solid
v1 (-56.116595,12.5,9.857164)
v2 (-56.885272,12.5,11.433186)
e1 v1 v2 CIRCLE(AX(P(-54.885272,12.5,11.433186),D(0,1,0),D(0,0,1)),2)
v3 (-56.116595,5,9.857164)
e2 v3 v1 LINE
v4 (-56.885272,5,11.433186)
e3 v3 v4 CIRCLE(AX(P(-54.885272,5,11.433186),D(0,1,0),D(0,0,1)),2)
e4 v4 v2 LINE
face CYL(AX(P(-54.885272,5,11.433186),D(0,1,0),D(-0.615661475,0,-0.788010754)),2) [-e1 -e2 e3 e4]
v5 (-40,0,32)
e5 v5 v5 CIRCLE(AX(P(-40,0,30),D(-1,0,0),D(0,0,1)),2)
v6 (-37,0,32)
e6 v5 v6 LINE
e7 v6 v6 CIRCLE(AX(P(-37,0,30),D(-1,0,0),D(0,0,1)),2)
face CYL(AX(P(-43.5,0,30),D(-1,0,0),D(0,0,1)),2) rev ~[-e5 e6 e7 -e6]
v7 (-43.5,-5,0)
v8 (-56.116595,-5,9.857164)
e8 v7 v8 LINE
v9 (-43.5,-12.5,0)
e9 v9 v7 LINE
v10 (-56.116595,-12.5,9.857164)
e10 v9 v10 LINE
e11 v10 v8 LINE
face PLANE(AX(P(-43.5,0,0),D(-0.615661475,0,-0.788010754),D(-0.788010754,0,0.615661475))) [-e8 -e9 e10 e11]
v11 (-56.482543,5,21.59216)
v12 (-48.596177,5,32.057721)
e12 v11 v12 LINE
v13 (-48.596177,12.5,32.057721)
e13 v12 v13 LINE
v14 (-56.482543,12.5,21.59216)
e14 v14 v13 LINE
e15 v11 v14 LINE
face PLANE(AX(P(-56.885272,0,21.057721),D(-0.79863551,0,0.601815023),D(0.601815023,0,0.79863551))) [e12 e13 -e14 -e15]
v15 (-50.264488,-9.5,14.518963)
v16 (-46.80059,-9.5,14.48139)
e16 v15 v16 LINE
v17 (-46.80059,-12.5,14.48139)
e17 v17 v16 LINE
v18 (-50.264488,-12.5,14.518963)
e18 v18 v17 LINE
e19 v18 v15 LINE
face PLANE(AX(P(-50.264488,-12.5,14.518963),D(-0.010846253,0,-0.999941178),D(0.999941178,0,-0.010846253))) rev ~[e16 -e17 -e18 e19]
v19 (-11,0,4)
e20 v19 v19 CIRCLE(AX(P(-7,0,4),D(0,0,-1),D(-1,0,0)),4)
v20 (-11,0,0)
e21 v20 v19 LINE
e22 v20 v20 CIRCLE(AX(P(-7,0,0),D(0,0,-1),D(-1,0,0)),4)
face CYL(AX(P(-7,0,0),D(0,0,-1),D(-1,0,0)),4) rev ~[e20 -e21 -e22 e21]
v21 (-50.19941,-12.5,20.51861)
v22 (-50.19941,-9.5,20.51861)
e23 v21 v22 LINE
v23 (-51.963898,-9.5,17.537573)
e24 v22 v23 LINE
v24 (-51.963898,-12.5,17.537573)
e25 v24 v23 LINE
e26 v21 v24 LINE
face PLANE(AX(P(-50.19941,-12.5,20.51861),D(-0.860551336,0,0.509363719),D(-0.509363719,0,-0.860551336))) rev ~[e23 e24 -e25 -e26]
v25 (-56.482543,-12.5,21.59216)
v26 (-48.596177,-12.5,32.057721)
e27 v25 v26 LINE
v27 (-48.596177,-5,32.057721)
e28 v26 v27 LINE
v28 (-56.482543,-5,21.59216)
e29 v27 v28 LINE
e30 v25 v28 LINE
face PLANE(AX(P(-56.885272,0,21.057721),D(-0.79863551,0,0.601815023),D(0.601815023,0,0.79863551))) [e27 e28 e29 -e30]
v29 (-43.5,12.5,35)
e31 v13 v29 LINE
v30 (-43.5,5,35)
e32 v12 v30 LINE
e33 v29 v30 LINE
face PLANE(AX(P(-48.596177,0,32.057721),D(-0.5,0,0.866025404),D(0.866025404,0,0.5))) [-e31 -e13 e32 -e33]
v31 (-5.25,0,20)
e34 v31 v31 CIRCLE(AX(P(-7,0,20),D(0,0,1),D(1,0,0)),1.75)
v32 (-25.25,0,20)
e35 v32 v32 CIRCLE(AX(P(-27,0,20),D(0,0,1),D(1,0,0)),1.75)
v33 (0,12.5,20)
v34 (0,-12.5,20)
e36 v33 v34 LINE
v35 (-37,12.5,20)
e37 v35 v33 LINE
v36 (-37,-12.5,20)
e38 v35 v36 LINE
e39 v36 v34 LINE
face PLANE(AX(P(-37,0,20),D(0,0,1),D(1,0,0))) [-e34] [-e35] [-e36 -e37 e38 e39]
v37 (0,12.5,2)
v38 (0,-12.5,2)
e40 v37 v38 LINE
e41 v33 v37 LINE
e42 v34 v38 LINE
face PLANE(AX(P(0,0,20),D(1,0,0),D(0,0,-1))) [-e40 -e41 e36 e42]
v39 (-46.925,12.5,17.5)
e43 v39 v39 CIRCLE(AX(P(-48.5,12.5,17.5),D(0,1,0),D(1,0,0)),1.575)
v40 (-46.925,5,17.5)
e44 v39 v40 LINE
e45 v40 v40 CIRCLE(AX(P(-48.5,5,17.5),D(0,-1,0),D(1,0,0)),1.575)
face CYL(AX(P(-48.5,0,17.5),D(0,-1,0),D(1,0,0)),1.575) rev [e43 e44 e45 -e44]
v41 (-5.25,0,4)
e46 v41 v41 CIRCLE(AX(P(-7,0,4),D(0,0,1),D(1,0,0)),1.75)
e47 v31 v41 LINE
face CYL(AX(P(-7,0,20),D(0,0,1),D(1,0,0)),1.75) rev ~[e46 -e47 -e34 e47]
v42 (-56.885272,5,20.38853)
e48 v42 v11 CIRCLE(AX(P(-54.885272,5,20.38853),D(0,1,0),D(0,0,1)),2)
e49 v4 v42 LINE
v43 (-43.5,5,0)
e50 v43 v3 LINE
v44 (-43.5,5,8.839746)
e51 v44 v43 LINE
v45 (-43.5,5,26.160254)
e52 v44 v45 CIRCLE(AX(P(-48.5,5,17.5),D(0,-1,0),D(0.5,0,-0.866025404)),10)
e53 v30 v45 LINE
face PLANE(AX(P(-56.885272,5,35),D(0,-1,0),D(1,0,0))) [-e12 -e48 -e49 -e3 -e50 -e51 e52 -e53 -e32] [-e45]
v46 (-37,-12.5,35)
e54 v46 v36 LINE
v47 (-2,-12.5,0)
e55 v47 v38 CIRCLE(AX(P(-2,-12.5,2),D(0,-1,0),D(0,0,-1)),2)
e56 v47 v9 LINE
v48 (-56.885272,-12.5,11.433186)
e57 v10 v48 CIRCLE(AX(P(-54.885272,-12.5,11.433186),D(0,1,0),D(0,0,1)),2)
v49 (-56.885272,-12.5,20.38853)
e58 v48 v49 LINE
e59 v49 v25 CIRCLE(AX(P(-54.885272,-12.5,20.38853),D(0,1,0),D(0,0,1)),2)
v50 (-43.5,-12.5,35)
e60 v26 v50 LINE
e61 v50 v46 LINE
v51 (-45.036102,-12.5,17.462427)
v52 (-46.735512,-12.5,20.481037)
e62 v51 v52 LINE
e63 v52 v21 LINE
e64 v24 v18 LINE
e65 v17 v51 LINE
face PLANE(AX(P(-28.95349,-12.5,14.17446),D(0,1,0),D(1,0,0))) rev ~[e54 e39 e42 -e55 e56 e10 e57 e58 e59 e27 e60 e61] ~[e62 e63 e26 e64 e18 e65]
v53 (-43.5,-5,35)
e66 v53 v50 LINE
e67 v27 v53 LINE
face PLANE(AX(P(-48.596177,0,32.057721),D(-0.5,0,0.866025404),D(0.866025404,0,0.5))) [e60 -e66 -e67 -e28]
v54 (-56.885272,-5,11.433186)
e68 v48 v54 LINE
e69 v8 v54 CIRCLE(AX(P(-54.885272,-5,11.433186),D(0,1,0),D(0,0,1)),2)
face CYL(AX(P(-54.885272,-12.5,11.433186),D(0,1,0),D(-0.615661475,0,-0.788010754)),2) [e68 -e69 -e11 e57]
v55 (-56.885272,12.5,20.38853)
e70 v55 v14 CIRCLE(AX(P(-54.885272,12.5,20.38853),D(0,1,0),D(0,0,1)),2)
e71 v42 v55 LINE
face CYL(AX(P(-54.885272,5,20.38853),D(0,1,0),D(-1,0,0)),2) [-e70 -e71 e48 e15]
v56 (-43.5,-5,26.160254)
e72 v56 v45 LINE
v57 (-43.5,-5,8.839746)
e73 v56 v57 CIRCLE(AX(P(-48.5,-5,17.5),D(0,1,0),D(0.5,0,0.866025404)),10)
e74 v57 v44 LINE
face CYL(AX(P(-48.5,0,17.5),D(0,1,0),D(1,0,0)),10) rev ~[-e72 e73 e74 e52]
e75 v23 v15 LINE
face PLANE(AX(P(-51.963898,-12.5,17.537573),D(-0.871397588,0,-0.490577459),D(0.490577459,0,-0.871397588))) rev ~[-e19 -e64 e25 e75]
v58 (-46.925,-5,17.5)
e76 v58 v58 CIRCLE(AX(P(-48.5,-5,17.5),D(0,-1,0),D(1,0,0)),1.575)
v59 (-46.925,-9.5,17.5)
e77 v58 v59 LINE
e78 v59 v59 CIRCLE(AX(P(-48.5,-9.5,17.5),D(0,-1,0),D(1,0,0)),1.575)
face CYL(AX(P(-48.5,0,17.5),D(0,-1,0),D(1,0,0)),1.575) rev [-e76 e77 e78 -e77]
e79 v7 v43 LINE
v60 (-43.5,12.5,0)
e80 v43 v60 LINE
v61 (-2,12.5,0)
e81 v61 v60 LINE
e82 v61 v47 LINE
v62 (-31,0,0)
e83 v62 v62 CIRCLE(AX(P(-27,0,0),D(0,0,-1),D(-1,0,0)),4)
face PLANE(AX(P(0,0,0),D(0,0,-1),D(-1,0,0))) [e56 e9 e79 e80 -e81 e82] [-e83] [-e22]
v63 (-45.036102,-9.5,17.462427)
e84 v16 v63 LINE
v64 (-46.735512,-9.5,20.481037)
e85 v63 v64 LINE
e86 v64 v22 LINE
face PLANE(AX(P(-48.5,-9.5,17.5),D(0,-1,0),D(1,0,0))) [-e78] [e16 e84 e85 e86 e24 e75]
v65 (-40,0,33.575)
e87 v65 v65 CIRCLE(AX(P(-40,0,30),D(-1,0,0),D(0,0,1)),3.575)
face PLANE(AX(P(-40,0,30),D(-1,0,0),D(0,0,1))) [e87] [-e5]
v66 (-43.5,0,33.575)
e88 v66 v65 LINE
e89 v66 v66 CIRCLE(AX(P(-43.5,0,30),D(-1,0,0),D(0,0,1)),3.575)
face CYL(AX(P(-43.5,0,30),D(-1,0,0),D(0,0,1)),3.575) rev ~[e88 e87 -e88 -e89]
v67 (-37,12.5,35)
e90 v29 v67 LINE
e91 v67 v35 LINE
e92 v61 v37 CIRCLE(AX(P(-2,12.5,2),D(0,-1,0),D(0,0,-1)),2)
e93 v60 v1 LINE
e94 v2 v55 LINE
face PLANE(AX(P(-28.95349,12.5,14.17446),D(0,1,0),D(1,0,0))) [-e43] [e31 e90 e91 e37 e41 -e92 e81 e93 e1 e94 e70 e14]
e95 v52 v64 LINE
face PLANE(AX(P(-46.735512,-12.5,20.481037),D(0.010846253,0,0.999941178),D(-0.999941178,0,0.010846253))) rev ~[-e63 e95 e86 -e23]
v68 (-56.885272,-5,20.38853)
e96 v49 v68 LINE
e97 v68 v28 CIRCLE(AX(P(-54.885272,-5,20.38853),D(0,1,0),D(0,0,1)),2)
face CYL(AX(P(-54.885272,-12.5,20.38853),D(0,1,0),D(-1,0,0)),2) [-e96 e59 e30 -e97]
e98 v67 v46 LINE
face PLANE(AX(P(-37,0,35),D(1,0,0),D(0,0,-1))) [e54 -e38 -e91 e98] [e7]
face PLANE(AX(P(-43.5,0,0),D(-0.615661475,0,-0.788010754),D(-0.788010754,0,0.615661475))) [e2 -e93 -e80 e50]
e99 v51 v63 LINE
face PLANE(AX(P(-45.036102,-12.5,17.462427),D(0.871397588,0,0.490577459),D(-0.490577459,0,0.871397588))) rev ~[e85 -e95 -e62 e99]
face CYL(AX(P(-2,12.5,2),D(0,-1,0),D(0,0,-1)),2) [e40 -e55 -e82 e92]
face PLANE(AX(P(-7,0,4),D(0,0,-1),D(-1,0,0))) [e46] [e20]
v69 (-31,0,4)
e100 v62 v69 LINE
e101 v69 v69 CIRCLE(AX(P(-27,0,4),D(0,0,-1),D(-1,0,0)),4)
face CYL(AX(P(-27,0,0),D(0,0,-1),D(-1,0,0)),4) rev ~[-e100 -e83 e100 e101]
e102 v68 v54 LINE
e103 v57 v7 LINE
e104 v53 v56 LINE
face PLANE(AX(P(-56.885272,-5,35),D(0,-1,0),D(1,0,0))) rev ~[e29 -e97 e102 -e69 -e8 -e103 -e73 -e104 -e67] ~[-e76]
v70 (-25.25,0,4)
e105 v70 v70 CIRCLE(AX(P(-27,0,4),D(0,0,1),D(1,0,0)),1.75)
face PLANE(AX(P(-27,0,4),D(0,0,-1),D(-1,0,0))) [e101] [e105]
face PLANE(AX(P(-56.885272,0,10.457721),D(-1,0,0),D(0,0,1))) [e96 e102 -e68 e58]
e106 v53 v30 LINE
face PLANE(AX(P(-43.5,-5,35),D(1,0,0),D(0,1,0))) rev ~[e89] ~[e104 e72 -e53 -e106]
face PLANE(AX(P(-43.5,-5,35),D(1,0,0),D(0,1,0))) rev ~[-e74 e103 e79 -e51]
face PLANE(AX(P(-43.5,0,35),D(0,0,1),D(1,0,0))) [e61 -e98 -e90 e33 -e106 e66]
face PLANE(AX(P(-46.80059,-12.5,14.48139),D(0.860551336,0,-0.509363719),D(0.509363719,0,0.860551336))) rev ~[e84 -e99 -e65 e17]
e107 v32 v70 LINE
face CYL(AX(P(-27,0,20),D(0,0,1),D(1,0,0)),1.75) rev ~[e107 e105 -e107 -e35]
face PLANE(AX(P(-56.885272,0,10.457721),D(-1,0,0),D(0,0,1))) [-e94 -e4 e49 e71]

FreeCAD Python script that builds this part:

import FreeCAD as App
import Part
import Sketcher
Q = App.Units.Quantity


def edges_at(feature, points):
    """Names of the edges that pass closest to the given points."""
    edges = feature.Shape.Edges
    near = lambda p: min(range(len(edges)), key=lambda i: edges[i].distToShape(Part.Vertex(*p))[0])
    return sorted({f"Edge{near(p) + 1}" for p in points})

doc = App.newDocument("Part")
params = doc.addObject("Spreadsheet::Sheet", "Params")
for row, (alias, value) in enumerate([
    ("sketch1_diameter", "3.15 mm"),
    ("sketch1_width", "37 mm"),
    ("sketch1_height", "15 mm"),
    ("sketch1_height2", "20 mm"),
    ("sketch1_width2", "43.5 mm"),
    ("pad1_length", "25 mm"),
    ("sketch2_height", "10 mm"),
    ("sketch3_diameter", "3.5 mm"),
    ("pocket2_length", "25 mm"),
    ("sketch4_diameter", "8 mm"),
    ("pocket3_length", "4 mm"),
    ("fillet_radius", "2 mm"),
    ("sketch5_diameter", "4 mm"),
    ("pocket4_length", "10 mm"),
    ("sketch6_diameter", "7.15 mm"),
    ("pocket5_length", "3.5 mm"),
    ("sketch7_diameter", "20 mm"),
    ("pocket6_length", "5 mm"),
    ("pocket6_length2", "5 mm"),
    ("pocket7_length", "3 mm"),
], start=1):
    params.set(f"A{row}", alias)
    params.set(f"B{row}", "=" + value)
    params.setAlias(f"B{row}", alias)

body = doc.addObject("PartDesign::Body", "Body")

# Sketch on XZ plane
sketch1 = body.newObject("Sketcher::SketchObject", "Sketch")
sketch1.AttachmentSupport = (doc.getObject("XZ_Plane"), [""])
sketch1.MapMode = "FlatFace"
sketch1.addGeometry(Part.LineSegment(App.Vector(0, 0, 0), App.Vector(-43.5, 0, 0)), False)
sketch1.addGeometry(Part.LineSegment(App.Vector(-43.5, 0, 0), App.Vector(-56.9, 10.5, 0)), False)
sketch1.addGeometry(Part.LineSegment(App.Vector(-56.9, 10.5, 0), App.Vector(-56.9, 21.1, 0)), False)
sketch1.addGeometry(Part.LineSegment(App.Vector(-56.9, 21.1, 0), App.Vector(-48.6, 32.1, 0)), False)
sketch1.addGeometry(Part.LineSegment(App.Vector(-48.6, 32.1, 0), App.Vector(-43.5, 35, 0)), False)
sketch1.addGeometry(Part.LineSegment(App.Vector(-43.5, 35, 0), App.Vector(-37, 35, 0)), False)
sketch1.addGeometry(Part.LineSegment(App.Vector(-37, 35, 0), App.Vector(-37, 20, 0)), False)
sketch1.addGeometry(Part.LineSegment(App.Vector(-37, 20, 0), App.Vector(0, 20, 0)), False)
sketch1.addGeometry(Part.LineSegment(App.Vector(0, 20, 0), App.Vector(0, 0, 0)), False)
sketch1.addGeometry(Part.Circle(App.Vector(-48.5, 17.5, 0), App.Vector(0, 0, 1), 1.6), False)
sketch1.addConstraint(Sketcher.Constraint("Coincident", 0, 2, 1, 1))
sketch1.addConstraint(Sketcher.Constraint("Coincident", 1, 2, 2, 1))
sketch1.addConstraint(Sketcher.Constraint("Coincident", 2, 2, 3, 1))
sketch1.addConstraint(Sketcher.Constraint("Coincident", 3, 2, 4, 1))
sketch1.addConstraint(Sketcher.Constraint("Coincident", 4, 2, 5, 1))
sketch1.addConstraint(Sketcher.Constraint("Coincident", 5, 2, 6, 1))
sketch1.addConstraint(Sketcher.Constraint("Coincident", 6, 2, 7, 1))
sketch1.addConstraint(Sketcher.Constraint("Coincident", 7, 2, 8, 1))
sketch1.addConstraint(Sketcher.Constraint("Coincident", 8, 2, 0, 1))
sketch1.addConstraint(Sketcher.Constraint("Horizontal", 0))
sketch1.addConstraint(Sketcher.Constraint("Vertical", 2))
sketch1.addConstraint(Sketcher.Constraint("Horizontal", 5))
sketch1.addConstraint(Sketcher.Constraint("Vertical", 6))
sketch1.addConstraint(Sketcher.Constraint("Horizontal", 7))
sketch1.addConstraint(Sketcher.Constraint("Vertical", 8))
sketch1.addConstraint(Sketcher.Constraint("Coincident", 8, 2, -1, 1))
sketch1.addConstraint(Sketcher.Constraint("Vertical", 0, 2, 4, 2))
sketch1.addConstraint(Sketcher.Constraint("Diameter", 9, Q("3.15 mm")))
sketch1.addConstraint(Sketcher.Constraint("DistanceX", 7, 1, 7, 2, Q("37 mm")))
sketch1.addConstraint(Sketcher.Constraint("DistanceY", 6, 2, 6, 1, Q("15 mm")))
sketch1.addConstraint(Sketcher.Constraint("DistanceY", 8, 2, 8, 1, Q("20 mm")))
sketch1.addConstraint(Sketcher.Constraint("Angle", 1, Q("142 deg")))
sketch1.addConstraint(Sketcher.Constraint("Angle", 3, Q("53 deg")))
sketch1.addConstraint(Sketcher.Constraint("Angle", 4, Q("30 deg")))
sketch1.addConstraint(Sketcher.Constraint("DistanceX", 0, 2, 0, 1, Q("43.5 mm")))
sketch1.addConstraint(Sketcher.Constraint("DistanceY", 2, 1, 2, 2, Q("10.6 mm")))
sketch1.addConstraint(Sketcher.Constraint("DistanceX", 9, 3, 0, 2, Q("5 mm")))
sketch1.addConstraint(Sketcher.Constraint("DistanceY", 2, 2, 3, 2, Q("11 mm")))
sketch1.addConstraint(Sketcher.Constraint("DistanceY", -1, 1, 9, 3, Q("17.5 mm")))
sketch1.setExpression("Constraints[17]", "Params.sketch1_diameter")
sketch1.setExpression("Constraints[18]", "Params.sketch1_width")
sketch1.setExpression("Constraints[19]", "Params.sketch1_height")
sketch1.setExpression("Constraints[20]", "Params.sketch1_height2")
sketch1.setExpression("Constraints[24]", "Params.sketch1_width2")
pad1 = body.newObject("PartDesign::Pad", "Pad")
pad1.Profile = sketch1
pad1.setExpression("Length", "Params.pad1_length")
pad1.Midplane = True

# Sketch on XY plane
sketch2 = body.newObject("Sketcher::SketchObject", "Sketch001")
sketch2.AttachmentSupport = (doc.getObject("XY_Plane"), [""])
sketch2.MapMode = "FlatFace"
sketch2.AttachmentOffset = App.Placement(App.Vector(0, 0, 35), App.Rotation())
sketch2.addGeometry(Part.LineSegment(App.Vector(-57, 5, 0), App.Vector(-57, -5, 0)), False)
sketch2.addGeometry(Part.LineSegment(App.Vector(-57, -5, 0), App.Vector(-44, -5, 0)), False)
sketch2.addGeometry(Part.LineSegment(App.Vector(-44, -5, 0), App.Vector(-44, 5, 0)), False)
sketch2.addGeometry(Part.LineSegment(App.Vector(-44, 5, 0), App.Vector(-57, 5, 0)), False)
sketch2.addConstraint(Sketcher.Constraint("Coincident", 0, 2, 1, 1))
sketch2.addConstraint(Sketcher.Constraint("Coincident", 1, 2, 2, 1))
sketch2.addConstraint(Sketcher.Constraint("Coincident", 2, 2, 3, 1))
sketch2.addConstraint(Sketcher.Constraint("Coincident", 3, 2, 0, 1))
sketch2.addConstraint(Sketcher.Constraint("Vertical", 0))
sketch2.addConstraint(Sketcher.Constraint("Horizontal", 1))
sketch2.addConstraint(Sketcher.Constraint("Vertical", 2))
sketch2.addConstraint(Sketcher.Constraint("Horizontal", 3))
sketch2.addConstraint(Sketcher.Constraint("DistanceY", 0, 2, 0, 1, Q("10 mm")))
sketch2.addConstraint(Sketcher.Constraint("DistanceY", 0, 2, -1, 1, Q("5 mm")))
sketch2.addConstraint(Sketcher.Constraint("DistanceX", 1, 2, -1, 1, Q("43.5 mm")))
sketch2.addConstraint(Sketcher.Constraint("DistanceX", 1, 1, 1, 2, Q("13.385272 mm")))
sketch2.setExpression("Constraints[8]", "Params.sketch2_height")
pocket1 = body.newObject("PartDesign::Pocket", "Pocket")
pocket1.Profile = sketch2
pocket1.Type = "ThroughAll"

# Sketch on XY plane
sketch3 = body.newObject("Sketcher::SketchObject", "Sketch002")
sketch3.AttachmentSupport = (doc.getObject("XY_Plane"), [""])
sketch3.MapMode = "FlatFace"
sketch3.AttachmentOffset = App.Placement(App.Vector(0, 0, 20), App.Rotation())
sketch3.addGeometry(Part.Circle(App.Vector(-27, 0, 0), App.Vector(0, 0, 1), 1.8), False)
sketch3.addGeometry(Part.Circle(App.Vector(-7, 0, 0), App.Vector(0, 0, 1), 1.8), False)
sketch3.addConstraint(Sketcher.Constraint("Equal", 0, 1))
sketch3.addConstraint(Sketcher.Constraint("PointOnObject", 0, 3, -1))
sketch3.addConstraint(Sketcher.Constraint("PointOnObject", 1, 3, -1))
sketch3.addConstraint(Sketcher.Constraint("Diameter", 0, Q("3.5 mm")))
sketch3.addConstraint(Sketcher.Constraint("DistanceX", 0, 3, -1, 1, Q("27 mm")))
sketch3.addConstraint(Sketcher.Constraint("DistanceX", 1, 3, -1, 1, Q("7 mm")))
sketch3.setExpression("Constraints[3]", "Params.sketch3_diameter")
pocket2 = body.newObject("PartDesign::Pocket", "Pocket001")
pocket2.Profile = sketch3
pocket2.setExpression("Length", "Params.pocket2_length")

# Sketch on XY plane
sketch4 = body.newObject("Sketcher::SketchObject", "Sketch003")
sketch4.AttachmentSupport = (doc.getObject("XY_Plane"), [""])
sketch4.MapMode = "FlatFace"
sketch4.addGeometry(Part.Circle(App.Vector(-7, 0, 0), App.Vector(0, 0, 1), 4), False)
sketch4.addGeometry(Part.Circle(App.Vector(-27, 0, 0), App.Vector(0, 0, 1), 4), False)
sketch4.addConstraint(Sketcher.Constraint("Equal", 0, 1))
sketch4.addConstraint(Sketcher.Constraint("PointOnObject", 0, 3, -1))
sketch4.addConstraint(Sketcher.Constraint("PointOnObject", 1, 3, -1))
sketch4.addConstraint(Sketcher.Constraint("Diameter", 0, Q("8 mm")))
sketch4.addConstraint(Sketcher.Constraint("DistanceX", 0, 3, -1, 1, Q("7 mm")))
sketch4.addConstraint(Sketcher.Constraint("DistanceX", 1, 3, -1, 1, Q("27 mm")))
sketch4.setExpression("Constraints[3]", "Params.sketch4_diameter")
pocket3 = body.newObject("PartDesign::Pocket", "Pocket002")
pocket3.Profile = sketch4
pocket3.setExpression("Length", "Params.pocket3_length")
pocket3.Reversed = True
doc.recompute()

fillet = body.newObject("PartDesign::Fillet", "Fillet")
fillet.Base = (pocket3, edges_at(pocket3, [
    (-56.885, 8.75, 21.058),
    (-56.885, 8.75, 10.458),
    (0, 0, 0),
    (-56.885, -8.75, 21.058),
    (-56.885, -8.75, 10.458),
]))
fillet.setExpression("Radius", "Params.fillet_radius")

# Sketch on YZ plane
sketch5 = body.newObject("Sketcher::SketchObject", "Sketch004")
sketch5.AttachmentSupport = (doc.getObject("YZ_Plane"), [""])
sketch5.MapMode = "FlatFace"
sketch5.AttachmentOffset = App.Placement(App.Vector(0, 0, -43.5), App.Rotation())
sketch5.addGeometry(Part.Circle(App.Vector(0, 30, 0), App.Vector(0, 0, 1), 2), False)
sketch5.addConstraint(Sketcher.Constraint("PointOnObject", 0, 3, -2))
sketch5.addConstraint(Sketcher.Constraint("Diameter", 0, Q("4 mm")))
sketch5.addConstraint(Sketcher.Constraint("DistanceY", -1, 1, 0, 3, Q("30 mm")))
sketch5.setExpression("Constraints[1]", "Params.sketch5_diameter")
pocket4 = body.newObject("PartDesign::Pocket", "Pocket003")
pocket4.Profile = sketch5
pocket4.setExpression("Length", "Params.pocket4_length")
pocket4.Reversed = True

# Sketch on YZ plane
sketch6 = body.newObject("Sketcher::SketchObject", "Sketch005")
sketch6.AttachmentSupport = (doc.getObject("YZ_Plane"), [""])
sketch6.MapMode = "FlatFace"
sketch6.AttachmentOffset = App.Placement(App.Vector(0, 0, -43.5), App.Rotation())
sketch6.addGeometry(Part.Circle(App.Vector(0, 30, 0), App.Vector(0, 0, 1), 3.6), False)
sketch6.addConstraint(Sketcher.Constraint("PointOnObject", 0, 3, -2))
sketch6.addConstraint(Sketcher.Constraint("Diameter", 0, Q("7.15 mm")))
sketch6.addConstraint(Sketcher.Constraint("DistanceY", -1, 1, 0, 3, Q("30 mm")))
sketch6.setExpression("Constraints[1]", "Params.sketch6_diameter")
pocket5 = body.newObject("PartDesign::Pocket", "Pocket004")
pocket5.Profile = sketch6
pocket5.setExpression("Length", "Params.pocket5_length")
pocket5.Reversed = True

# Sketch on XZ plane
sketch7 = body.newObject("Sketcher::SketchObject", "Sketch006")
sketch7.AttachmentSupport = (doc.getObject("XZ_Plane"), [""])
sketch7.MapMode = "FlatFace"
sketch7.addGeometry(Part.Circle(App.Vector(-48, 18, 0), App.Vector(0, 0, 1), 10), False)
sketch7.addConstraint(Sketcher.Constraint("Diameter", 0, Q("20 mm")))
sketch7.addConstraint(Sketcher.Constraint("DistanceX", 0, 3, -1, 1, Q("48.5 mm")))
sketch7.addConstraint(Sketcher.Constraint("DistanceY", -1, 1, 0, 3, Q("17.5 mm")))
sketch7.setExpression("Constraints[0]", "Params.sketch7_diameter")
pocket6 = body.newObject("PartDesign::Pocket", "Pocket005")
pocket6.Profile = sketch7
pocket6.Type = "TwoLengths"
pocket6.setExpression("Length", "Params.pocket6_length")
pocket6.setExpression("Length2", "Params.pocket6_length2")

# Sketch on XZ plane
sketch8 = body.newObject("Sketcher::SketchObject", "Sketch007")
sketch8.AttachmentSupport = (doc.getObject("XZ_Plane"), [""])
sketch8.MapMode = "FlatFace"
sketch8.AttachmentOffset = App.Placement(App.Vector(0, 0, 12.5), App.Rotation())
sketch8.addGeometry(Part.LineSegment(App.Vector(-46.8, 14.5, 0), App.Vector(-45, 17.5, 0)), False)
sketch8.addGeometry(Part.LineSegment(App.Vector(-45, 17.5, 0), App.Vector(-46.7, 20.5, 0)), False)
sketch8.addGeometry(Part.LineSegment(App.Vector(-46.7, 20.5, 0), App.Vector(-50.2, 20.5, 0)), False)
sketch8.addGeometry(Part.LineSegment(App.Vector(-50.2, 20.5, 0), App.Vector(-52, 17.5, 0)), False)
sketch8.addGeometry(Part.LineSegment(App.Vector(-52, 17.5, 0), App.Vector(-50.3, 14.5, 0)), False)
sketch8.addGeometry(Part.LineSegment(App.Vector(-50.3, 14.5, 0), App.Vector(-46.8, 14.5, 0)), False)
sketch8.addConstraint(Sketcher.Constraint("Coincident", 0, 2, 1, 1))
sketch8.addConstraint(Sketcher.Constraint("Coincident", 1, 2, 2, 1))
sketch8.addConstraint(Sketcher.Constraint("Coincident", 2, 2, 3, 1))
sketch8.addConstraint(Sketcher.Constraint("Coincident", 3, 2, 4, 1))
sketch8.addConstraint(Sketcher.Constraint("Coincident", 4, 2, 5, 1))
sketch8.addConstraint(Sketcher.Constraint("Coincident", 5, 2, 0, 1))
sketch8.addConstraint(Sketcher.Constraint("Parallel", 0, 3))
sketch8.addConstraint(Sketcher.Constraint("Parallel", 1, 4))
sketch8.addConstraint(Sketcher.Constraint("Parallel", 2, 5))
sketch8.addConstraint(Sketcher.Constraint("Equal", 0, 1))
sketch8.addConstraint(Sketcher.Constraint("Equal", 1, 2))
sketch8.addConstraint(Sketcher.Constraint("Equal", 2, 3))
sketch8.addConstraint(Sketcher.Constraint("Distance", 0, Q("3.464102 mm")))
sketch8.addConstraint(Sketcher.Constraint("DistanceX", 2, 2, -1, 1, Q("50.19941 mm")))
sketch8.addConstraint(Sketcher.Constraint("DistanceY", -1, 1, 2, 2, Q("20.51861 mm")))
sketch8.addConstraint(Sketcher.Constraint("DistanceX", 5, 2, -1, 1, Q("46.80059 mm")))
sketch8.addConstraint(Sketcher.Constraint("DistanceY", -1, 1, 5, 2, Q("14.48139 mm")))
sketch8.addConstraint(Sketcher.Constraint("DistanceX", 1, 2, 0, 2, Q("1.69941 mm")))
pocket7 = body.newObject("PartDesign::Pocket", "Pocket006")
pocket7.Profile = sketch8
pocket7.setExpression("Length", "Params.pocket7_length")

doc.recompute()
